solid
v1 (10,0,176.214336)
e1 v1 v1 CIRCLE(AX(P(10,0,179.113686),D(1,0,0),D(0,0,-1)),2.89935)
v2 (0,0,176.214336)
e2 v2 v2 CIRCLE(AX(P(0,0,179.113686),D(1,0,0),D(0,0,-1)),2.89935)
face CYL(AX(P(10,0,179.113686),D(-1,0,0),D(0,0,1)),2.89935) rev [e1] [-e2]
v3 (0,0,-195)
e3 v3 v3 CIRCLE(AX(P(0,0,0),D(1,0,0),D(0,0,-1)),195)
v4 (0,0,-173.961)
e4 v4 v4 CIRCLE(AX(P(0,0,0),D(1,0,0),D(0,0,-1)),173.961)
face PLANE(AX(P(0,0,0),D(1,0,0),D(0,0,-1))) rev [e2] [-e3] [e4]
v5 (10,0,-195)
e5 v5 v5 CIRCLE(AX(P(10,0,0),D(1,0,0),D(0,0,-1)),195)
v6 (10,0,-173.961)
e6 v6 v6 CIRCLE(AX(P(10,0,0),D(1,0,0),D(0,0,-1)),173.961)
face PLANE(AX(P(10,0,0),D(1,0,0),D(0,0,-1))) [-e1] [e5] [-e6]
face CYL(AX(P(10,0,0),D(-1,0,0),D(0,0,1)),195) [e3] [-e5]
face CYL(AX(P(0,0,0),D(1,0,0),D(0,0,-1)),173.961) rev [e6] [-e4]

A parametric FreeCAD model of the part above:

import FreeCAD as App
import Part
import Sketcher
from FreeCAD import Vector

doc = App.newDocument("Part")
body = doc.addObject("PartDesign::Body", "Body")

# Sketch on YZ plane
sketch1 = body.newObject("Sketcher::SketchObject", "Sketch")
sketch1.AttachmentSupport = (doc.getObject("YZ_Plane"), [""])
sketch1.MapMode = "FlatFace"
sketch1.addGeometry(Part.Circle(Vector(0, 0, 0), Vector(0, 0, 1), 195), False)
sketch1.addGeometry(Part.Circle(Vector(0, 179.1, 0), Vector(0, 0, 1), 2.9), False)
sketch1.addConstraint(Sketcher.Constraint("Coincident", 0, 3, -1, 1))
sketch1.addConstraint(Sketcher.Constraint("PointOnObject", 1, 3, -2))
sketch1.addConstraint(Sketcher.Constraint("Diameter", 0, 390.0))
sketch1.addConstraint(Sketcher.Constraint("Diameter", 1, 5.7987))
sketch1.addConstraint(Sketcher.Constraint("DistanceY", -1, 1, 1, 3, 179.113686))
pad1 = body.newObject("PartDesign::Pad", "Pad")
pad1.Profile = sketch1
pad1.Length = 10

# Sketch on YZ plane
sketch2 = body.newObject("Sketcher::SketchObject", "Sketch001")
sketch2.AttachmentSupport = (doc.getObject("YZ_Plane"), [""])
sketch2.MapMode = "FlatFace"
sketch2.AttachmentOffset = App.Placement(Vector(0, 0, 10), App.Rotation())
sketch2.addGeometry(Part.Circle(Vector(0, 0, 0), Vector(0, 0, 1), 174), False)
sketch2.addConstraint(Sketcher.Constraint("Coincident", 0, 3, -1, 1))
sketch2.addConstraint(Sketcher.Constraint("Diameter", 0, 347.922))
pocket1 = body.newObject("PartDesign::Pocket", "Pocket")
pocket1.Profile = sketch2
pocket1.Type = "ThroughAll"
pocket1.Midplane = True

doc.recompute()
